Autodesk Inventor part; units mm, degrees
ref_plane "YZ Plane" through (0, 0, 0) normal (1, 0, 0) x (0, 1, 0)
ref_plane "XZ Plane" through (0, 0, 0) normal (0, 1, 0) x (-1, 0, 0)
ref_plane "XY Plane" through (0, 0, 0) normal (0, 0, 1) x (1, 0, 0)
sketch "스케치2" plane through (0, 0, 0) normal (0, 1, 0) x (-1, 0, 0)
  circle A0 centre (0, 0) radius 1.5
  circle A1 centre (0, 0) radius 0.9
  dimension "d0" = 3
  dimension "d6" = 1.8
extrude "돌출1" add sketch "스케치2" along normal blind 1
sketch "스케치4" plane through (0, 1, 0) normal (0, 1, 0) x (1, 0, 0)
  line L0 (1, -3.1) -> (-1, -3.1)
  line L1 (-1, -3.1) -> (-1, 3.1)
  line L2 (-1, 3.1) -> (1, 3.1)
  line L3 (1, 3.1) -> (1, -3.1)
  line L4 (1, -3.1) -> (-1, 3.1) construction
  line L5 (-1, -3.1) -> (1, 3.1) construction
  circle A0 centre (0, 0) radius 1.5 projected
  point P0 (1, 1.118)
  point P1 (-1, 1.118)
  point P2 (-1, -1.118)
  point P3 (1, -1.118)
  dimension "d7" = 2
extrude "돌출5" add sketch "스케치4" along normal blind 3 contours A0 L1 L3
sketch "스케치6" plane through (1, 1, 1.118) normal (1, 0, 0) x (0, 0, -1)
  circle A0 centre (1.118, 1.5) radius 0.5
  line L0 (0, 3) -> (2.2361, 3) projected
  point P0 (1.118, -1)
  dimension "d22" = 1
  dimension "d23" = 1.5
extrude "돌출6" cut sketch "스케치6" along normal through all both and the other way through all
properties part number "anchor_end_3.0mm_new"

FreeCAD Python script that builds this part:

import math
import FreeCAD as App
import Part
import Sketcher

V = App.Vector

doc = App.newDocument("Part")
body = doc.addObject("PartDesign::Body", "Body")

sketch1 = body.newObject("Sketcher::SketchObject", "Sketch")
sketch1.AttachmentSupport = (doc.getObject("XZ_Plane"), [""])
sketch1.MapMode = "FlatFace"
sketch1.addGeometry([
    Part.Circle(V(0, 0, 0), V(0, 0, 1), 1.5),
    Part.Circle(V(0, 0, 0), V(0, 0, 1), 0.9),
], False)
sketch1.addConstraint([
    Sketcher.Constraint("Coincident", 0, 3, -1, 1),
    Sketcher.Constraint("Coincident", 1, 3, -1, 1),
    Sketcher.Constraint("Diameter", 0, 3.0),
    Sketcher.Constraint("Diameter", 1, 1.8),
])
pad1 = body.newObject("PartDesign::Pad", "Pad")
pad1.Profile = sketch1
pad1.Length = 1
pad1.Reversed = True

sketch2 = body.newObject("Sketcher::SketchObject", "Sketch001")
sketch2.AttachmentSupport = (doc.getObject("XZ_Plane"), [""])
sketch2.MapMode = "FlatFace"
sketch2.AttachmentOffset = App.Placement(V(0, 0, -1), App.Rotation())
sketch2.addGeometry([
    Part.ArcOfCircle(Part.Circle(V(0, 0, 0), V(0, 0, 1), 1.5), math.radians(48.189685), math.radians(131.810315)),
    Part.LineSegment(V(1, 1.118034, 0), V(1, -1.118034, 0)),
    Part.ArcOfCircle(Part.Circle(V(0, 0, 0), V(0, 0, 1), 1.5), math.radians(-131.810315), math.radians(-48.189685)),
    Part.LineSegment(V(-1, -1.118034, 0), V(-1, 1.118034, 0)),
], False)
sketch2.addConstraint([
    Sketcher.Constraint("Coincident", 0, 1, 1, 1),
    Sketcher.Constraint("Coincident", 1, 2, 2, 2),
    Sketcher.Constraint("Coincident", 2, 1, 3, 1),
    Sketcher.Constraint("Coincident", 3, 2, 0, 2),
    Sketcher.Constraint("Vertical", 1),
    Sketcher.Constraint("Vertical", 3),
    Sketcher.Constraint("Coincident", 0, 3, -1, 1),
    Sketcher.Constraint("Coincident", 2, 3, -1, 1),
    Sketcher.Constraint("Equal", 0, 2),
    Sketcher.Constraint("Horizontal", 1, 2, 2, 1),
    Sketcher.Constraint("DistanceX", 2, 1, 1, 2, 2.0),
    Sketcher.Constraint("Radius", 0, 1.5),
])
pad2 = body.newObject("PartDesign::Pad", "Pad001")
pad2.Profile = sketch2
pad2.Length = 3
pad2.Reversed = True

sketch3 = body.newObject("Sketcher::SketchObject", "Sketch002")
sketch3.AttachmentSupport = (doc.getObject("YZ_Plane"), [""])
sketch3.MapMode = "FlatFace"
sketch3.AttachmentOffset = App.Placement(V(0, 0, 1), App.Rotation())
sketch3.addGeometry(Part.Circle(V(2.5, 0, 0), V(0, 0, 1), 0.5), False)
sketch3.addConstraint([
    Sketcher.Constraint("PointOnObject", 0, 3, -1),
    Sketcher.Constraint("Diameter", 0, 1.0),
    Sketcher.Constraint("DistanceX", -1, 1, 0, 3, 2.5),
])
pocket1 = body.newObject("PartDesign::Pocket", "Pocket")
pocket1.Profile = sketch3
pocket1.Type = "ThroughAll"
pocket1.Midplane = True

doc.recompute()
